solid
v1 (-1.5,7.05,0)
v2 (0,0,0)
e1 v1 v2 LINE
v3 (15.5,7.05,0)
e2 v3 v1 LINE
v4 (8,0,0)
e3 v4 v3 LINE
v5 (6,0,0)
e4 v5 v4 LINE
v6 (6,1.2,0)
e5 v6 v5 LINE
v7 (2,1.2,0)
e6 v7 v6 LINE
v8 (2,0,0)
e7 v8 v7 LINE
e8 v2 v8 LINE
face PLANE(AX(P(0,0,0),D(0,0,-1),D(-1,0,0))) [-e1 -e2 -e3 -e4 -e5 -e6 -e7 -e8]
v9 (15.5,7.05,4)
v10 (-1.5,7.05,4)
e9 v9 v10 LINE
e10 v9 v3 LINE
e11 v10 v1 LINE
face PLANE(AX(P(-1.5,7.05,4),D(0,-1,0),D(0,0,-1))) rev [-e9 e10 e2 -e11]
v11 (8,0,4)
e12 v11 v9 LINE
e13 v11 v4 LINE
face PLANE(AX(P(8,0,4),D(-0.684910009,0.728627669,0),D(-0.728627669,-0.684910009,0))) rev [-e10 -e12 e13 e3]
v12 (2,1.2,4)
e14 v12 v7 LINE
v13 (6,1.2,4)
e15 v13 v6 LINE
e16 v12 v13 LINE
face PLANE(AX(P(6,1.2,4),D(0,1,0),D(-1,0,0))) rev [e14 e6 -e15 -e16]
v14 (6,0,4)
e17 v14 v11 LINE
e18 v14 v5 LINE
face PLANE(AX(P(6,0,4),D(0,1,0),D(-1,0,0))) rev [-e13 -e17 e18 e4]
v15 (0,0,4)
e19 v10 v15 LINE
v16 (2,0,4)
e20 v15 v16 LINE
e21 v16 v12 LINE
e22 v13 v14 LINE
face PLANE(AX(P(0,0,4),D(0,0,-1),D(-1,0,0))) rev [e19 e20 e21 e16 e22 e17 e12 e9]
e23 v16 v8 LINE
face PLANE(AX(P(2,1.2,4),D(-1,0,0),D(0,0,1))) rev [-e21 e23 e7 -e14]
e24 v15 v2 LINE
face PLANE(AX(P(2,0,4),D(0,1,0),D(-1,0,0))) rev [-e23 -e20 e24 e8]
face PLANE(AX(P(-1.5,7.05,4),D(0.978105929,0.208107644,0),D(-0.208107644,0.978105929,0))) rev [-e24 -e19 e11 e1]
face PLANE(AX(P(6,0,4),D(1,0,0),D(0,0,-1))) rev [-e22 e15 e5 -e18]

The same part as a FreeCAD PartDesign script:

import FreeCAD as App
import Part
import Sketcher

V = App.Vector
Q = App.Units.Quantity


def add_polygon(sketch, points):
    """Adds a closed chain of lines whose ends are joined by coincident constraints."""
    first, n = sketch.GeometryCount, len(points)
    for a, b in zip(points, points[1:] + points[:1]):
        sketch.addGeometry(Part.LineSegment(App.Vector(*a, 0), App.Vector(*b, 0)), False)
    for i in range(n):
        sketch.addConstraint(Sketcher.Constraint("Coincident", first + i, 2, first + (i + 1) % n, 1))

doc = App.newDocument("Part")
body = doc.addObject("PartDesign::Body", "Body")

# Sketch on XY plane
sketch1 = body.newObject("Sketcher::SketchObject", "Sketch")
sketch1.AttachmentSupport = (doc.getObject("XY_Plane"), [""])
sketch1.MapMode = "FlatFace"
add_polygon(sketch1, [(15.5, 7), (-1.5, 7), (0, 0), (2, 0), (2, 1.2), (6, 1.2), (6, 0), (8, 0)])  # lines 0-7
sketch1.addConstraint([
    Sketcher.Constraint("Horizontal", 0),
    Sketcher.Constraint("Horizontal", 2),
    Sketcher.Constraint("Vertical", 3),
    Sketcher.Constraint("Horizontal", 4),
    Sketcher.Constraint("Vertical", 5),
    Sketcher.Constraint("Horizontal", 6),
    Sketcher.Constraint("Coincident", 1, 2, -1, 1),
    Sketcher.Constraint("PointOnObject", 5, 2, -1),
    Sketcher.Constraint("Equal", 2, 6),
    Sketcher.Constraint("DistanceX", 0, 2, 0, 1, Q("17 mm")),
    Sketcher.Constraint("DistanceX", 2, 1, 2, 2, Q("2 mm")),
    Sketcher.Constraint("DistanceX", 4, 1, 4, 2, Q("4 mm")),
    Sketcher.Constraint("DistanceY", 3, 1, 3, 2, Q("1.2 mm")),
    Sketcher.Constraint("DistanceX", 0, 2, -1, 1, Q("1.5 mm")),
    Sketcher.Constraint("DistanceY", -1, 1, 0, 2, Q("7.05 mm")),
])
pad1 = body.newObject("PartDesign::Pad", "Pad")
pad1.Profile = sketch1
pad1.Length = 4

doc.recompute()
